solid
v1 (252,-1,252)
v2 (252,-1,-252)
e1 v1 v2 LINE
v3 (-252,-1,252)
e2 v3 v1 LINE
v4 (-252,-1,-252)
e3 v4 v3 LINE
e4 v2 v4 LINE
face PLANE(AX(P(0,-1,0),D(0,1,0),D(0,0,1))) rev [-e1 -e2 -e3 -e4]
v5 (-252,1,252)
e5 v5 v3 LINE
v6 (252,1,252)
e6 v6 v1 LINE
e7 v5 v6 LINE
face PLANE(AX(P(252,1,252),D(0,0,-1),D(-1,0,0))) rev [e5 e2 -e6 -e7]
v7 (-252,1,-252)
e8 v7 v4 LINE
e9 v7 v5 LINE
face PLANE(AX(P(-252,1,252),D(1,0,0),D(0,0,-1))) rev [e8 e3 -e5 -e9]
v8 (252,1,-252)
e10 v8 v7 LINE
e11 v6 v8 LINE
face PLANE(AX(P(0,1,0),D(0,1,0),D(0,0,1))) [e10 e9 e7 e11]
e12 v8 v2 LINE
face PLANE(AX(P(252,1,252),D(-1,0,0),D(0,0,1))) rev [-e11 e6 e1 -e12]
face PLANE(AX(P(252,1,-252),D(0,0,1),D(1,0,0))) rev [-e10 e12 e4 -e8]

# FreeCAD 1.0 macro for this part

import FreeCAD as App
import Part
import Sketcher
Q = App.Units.Quantity


def add_polygon(sketch, points):
    """Adds a closed chain of lines whose ends are joined by coincident constraints."""
    first, n = sketch.GeometryCount, len(points)
    for a, b in zip(points, points[1:] + points[:1]):
        sketch.addGeometry(Part.LineSegment(App.Vector(*a, 0), App.Vector(*b, 0)), False)
    for i in range(n):
        sketch.addConstraint(Sketcher.Constraint("Coincident", first + i, 2, first + (i + 1) % n, 1))

doc = App.newDocument("Part")
body = doc.addObject("PartDesign::Body", "Body")

# Sketch on XZ plane
sketch1 = body.newObject("Sketcher::SketchObject", "Sketch")
sketch1.AttachmentSupport = (doc.getObject("XZ_Plane"), [""])
sketch1.MapMode = "FlatFace"
add_polygon(sketch1, [(-252, -252), (-252, 252), (252, 252), (252, -252)])  # lines 0-3
sketch1.addConstraint(Sketcher.Constraint("Vertical", 0))
sketch1.addConstraint(Sketcher.Constraint("Horizontal", 1))
sketch1.addConstraint(Sketcher.Constraint("Vertical", 2))
sketch1.addConstraint(Sketcher.Constraint("Horizontal", 3))
sketch1.addConstraint(Sketcher.Constraint("Symmetric", 0, 2, 2, 2, -1, 1))
sketch1.addConstraint(Sketcher.Constraint("Equal", 3, 0))
sketch1.addConstraint(Sketcher.Constraint("DistanceX", 1, 1, 1, 2, Q("504 mm")))
pad1 = body.newObject("PartDesign::Pad", "Pad")
pad1.Profile = sketch1
pad1.Length = 2
pad1.Midplane = True

doc.recompute()
